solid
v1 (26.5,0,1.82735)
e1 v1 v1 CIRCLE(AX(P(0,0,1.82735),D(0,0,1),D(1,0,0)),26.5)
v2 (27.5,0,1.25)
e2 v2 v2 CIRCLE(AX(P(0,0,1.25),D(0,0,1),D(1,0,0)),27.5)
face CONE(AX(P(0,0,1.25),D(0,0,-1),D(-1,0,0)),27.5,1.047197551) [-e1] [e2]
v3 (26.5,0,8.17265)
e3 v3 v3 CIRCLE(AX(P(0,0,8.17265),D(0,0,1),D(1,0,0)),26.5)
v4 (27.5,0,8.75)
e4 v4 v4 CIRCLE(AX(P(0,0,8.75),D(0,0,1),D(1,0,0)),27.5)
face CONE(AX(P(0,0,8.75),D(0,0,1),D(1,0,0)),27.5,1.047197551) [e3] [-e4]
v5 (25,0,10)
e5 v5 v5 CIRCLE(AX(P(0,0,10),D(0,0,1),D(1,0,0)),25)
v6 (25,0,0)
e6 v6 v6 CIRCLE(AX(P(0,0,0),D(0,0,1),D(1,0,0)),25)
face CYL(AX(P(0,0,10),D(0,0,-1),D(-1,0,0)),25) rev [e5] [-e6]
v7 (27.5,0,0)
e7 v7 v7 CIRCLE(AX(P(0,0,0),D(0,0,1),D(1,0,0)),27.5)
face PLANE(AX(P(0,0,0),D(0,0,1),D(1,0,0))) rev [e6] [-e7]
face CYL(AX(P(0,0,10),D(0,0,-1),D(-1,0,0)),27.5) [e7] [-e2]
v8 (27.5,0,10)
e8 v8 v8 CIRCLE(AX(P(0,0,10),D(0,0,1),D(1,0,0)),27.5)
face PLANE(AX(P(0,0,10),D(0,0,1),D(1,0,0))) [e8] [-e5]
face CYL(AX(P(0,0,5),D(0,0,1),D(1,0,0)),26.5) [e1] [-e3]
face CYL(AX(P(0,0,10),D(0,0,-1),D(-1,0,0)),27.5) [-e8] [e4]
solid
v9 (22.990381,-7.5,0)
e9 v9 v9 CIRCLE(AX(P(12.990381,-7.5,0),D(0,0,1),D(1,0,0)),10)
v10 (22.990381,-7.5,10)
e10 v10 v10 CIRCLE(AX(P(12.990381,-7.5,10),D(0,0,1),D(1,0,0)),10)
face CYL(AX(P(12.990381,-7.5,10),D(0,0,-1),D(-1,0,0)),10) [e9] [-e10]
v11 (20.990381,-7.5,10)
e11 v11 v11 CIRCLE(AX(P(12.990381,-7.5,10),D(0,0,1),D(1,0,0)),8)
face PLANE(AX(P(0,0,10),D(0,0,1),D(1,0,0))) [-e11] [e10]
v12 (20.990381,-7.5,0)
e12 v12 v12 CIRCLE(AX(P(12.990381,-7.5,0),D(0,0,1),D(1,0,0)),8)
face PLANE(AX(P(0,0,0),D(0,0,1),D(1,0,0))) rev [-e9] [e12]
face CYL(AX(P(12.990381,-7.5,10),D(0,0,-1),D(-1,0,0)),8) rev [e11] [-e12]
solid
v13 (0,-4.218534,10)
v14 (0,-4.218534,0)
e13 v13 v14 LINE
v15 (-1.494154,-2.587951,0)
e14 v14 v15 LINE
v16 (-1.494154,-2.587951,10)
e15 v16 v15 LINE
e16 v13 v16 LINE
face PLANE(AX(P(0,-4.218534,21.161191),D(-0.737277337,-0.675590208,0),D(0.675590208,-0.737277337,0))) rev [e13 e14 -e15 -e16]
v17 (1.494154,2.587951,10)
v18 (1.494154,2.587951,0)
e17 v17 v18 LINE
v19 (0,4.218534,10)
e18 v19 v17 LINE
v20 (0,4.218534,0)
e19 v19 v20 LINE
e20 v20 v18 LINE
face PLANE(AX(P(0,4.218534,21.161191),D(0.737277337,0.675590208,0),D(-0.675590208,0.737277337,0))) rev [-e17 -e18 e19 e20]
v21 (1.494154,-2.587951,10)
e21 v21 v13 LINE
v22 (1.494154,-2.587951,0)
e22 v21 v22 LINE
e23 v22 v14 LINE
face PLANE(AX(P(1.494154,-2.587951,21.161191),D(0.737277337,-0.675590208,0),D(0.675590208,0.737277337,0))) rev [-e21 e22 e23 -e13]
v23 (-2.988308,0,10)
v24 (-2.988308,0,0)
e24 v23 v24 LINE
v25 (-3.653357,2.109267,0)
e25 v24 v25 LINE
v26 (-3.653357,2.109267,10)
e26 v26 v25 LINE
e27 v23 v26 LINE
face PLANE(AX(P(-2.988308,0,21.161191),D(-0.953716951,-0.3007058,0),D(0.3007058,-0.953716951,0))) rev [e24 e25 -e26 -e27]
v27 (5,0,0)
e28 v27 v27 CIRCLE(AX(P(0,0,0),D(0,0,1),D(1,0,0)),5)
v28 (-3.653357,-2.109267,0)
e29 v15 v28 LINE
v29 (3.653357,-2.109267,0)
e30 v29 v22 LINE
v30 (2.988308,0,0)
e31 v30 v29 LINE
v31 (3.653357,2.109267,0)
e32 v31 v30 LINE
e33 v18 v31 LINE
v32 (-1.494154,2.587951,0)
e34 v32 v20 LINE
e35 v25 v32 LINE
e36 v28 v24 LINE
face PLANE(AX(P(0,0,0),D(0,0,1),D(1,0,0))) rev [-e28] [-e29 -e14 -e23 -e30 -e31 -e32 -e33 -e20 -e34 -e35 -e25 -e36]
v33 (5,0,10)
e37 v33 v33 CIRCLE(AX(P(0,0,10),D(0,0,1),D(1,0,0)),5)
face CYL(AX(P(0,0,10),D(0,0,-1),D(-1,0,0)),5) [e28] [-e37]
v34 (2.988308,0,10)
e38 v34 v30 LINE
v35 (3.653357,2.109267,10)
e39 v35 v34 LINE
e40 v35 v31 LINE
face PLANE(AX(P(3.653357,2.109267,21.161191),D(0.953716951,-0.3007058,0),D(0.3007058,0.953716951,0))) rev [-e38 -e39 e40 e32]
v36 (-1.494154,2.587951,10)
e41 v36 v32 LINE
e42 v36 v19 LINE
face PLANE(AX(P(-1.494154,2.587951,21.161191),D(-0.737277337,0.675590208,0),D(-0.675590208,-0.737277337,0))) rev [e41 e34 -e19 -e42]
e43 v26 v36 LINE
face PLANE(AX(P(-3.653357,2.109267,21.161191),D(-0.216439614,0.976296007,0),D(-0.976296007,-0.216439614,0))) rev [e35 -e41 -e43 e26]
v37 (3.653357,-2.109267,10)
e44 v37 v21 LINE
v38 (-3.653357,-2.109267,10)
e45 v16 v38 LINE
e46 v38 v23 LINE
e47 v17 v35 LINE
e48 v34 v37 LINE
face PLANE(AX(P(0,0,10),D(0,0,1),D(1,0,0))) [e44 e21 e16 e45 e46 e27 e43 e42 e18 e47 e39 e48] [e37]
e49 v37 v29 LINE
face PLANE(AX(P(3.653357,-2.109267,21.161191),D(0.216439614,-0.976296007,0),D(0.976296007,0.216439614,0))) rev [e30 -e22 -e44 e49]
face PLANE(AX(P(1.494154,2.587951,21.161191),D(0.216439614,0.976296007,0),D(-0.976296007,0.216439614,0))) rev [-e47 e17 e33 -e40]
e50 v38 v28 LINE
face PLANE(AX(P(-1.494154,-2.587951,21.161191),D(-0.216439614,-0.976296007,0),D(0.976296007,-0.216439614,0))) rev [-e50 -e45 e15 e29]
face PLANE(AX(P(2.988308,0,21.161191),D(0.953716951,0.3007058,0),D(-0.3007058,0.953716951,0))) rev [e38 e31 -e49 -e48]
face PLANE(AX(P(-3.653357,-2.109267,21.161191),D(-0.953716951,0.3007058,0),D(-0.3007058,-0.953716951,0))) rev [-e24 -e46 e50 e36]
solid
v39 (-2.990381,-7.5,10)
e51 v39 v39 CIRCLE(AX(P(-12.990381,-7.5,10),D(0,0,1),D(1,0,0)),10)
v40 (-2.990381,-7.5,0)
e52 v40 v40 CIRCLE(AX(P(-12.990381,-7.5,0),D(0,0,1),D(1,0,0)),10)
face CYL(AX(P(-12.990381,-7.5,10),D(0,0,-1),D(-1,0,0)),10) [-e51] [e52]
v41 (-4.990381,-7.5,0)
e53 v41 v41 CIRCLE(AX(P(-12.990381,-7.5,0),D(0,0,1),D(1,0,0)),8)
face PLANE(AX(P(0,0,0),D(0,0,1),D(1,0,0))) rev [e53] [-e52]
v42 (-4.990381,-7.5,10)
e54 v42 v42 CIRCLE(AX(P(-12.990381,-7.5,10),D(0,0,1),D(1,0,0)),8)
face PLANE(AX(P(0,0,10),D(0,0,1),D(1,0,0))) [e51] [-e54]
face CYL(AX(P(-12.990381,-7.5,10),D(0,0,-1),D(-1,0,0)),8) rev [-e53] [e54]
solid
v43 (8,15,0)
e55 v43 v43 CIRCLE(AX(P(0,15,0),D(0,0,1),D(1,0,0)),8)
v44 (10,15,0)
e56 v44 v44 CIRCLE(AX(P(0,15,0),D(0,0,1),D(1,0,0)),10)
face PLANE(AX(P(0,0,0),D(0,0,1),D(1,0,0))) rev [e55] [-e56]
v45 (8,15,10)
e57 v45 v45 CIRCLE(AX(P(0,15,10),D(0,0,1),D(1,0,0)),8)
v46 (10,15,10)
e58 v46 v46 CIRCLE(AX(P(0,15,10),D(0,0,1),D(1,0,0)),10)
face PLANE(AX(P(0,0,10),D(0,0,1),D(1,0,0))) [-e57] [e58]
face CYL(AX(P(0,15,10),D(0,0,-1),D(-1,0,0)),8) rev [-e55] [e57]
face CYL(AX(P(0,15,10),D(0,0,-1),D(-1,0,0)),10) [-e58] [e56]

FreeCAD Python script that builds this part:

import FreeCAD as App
import Part
import Sketcher
Q = App.Units.Quantity

doc = App.newDocument("Part")
body = doc.addObject("PartDesign::Body", "Body")

sketch1 = body.newObject("Sketcher::SketchObject", "Sketch")
sketch1.AttachmentSupport = (doc.getObject("XY_Plane"), [""])
sketch1.MapMode = "FlatFace"
sketch1.addGeometry([
    Part.Circle(App.Vector(0, 15, 0), App.Vector(0, 0, 1), 10),
    Part.Circle(App.Vector(0, 15, 0), App.Vector(0, 0, 1), 8),
], False)
sketch1.addConstraint([
    Sketcher.Constraint("Coincident", 1, 3, 0, 3),
    Sketcher.Constraint("PointOnObject", 0, 3, -2),
    Sketcher.Constraint("Diameter", 0, Q("20 mm")),
    Sketcher.Constraint("Diameter", 1, Q("16 mm")),
    Sketcher.Constraint("DistanceY", -1, 1, 0, 3, Q("15 mm")),
])
pad1 = body.newObject("PartDesign::Pad", "Pad")
pad1.Profile = sketch1
pad1.Length = 10
body2 = doc.addObject("PartDesign::Body", "Body001")

sketch2 = body2.newObject("Sketcher::SketchObject", "Sketch001")
sketch2.AttachmentSupport = (doc.getObject("XY_Plane001"), [""])
sketch2.MapMode = "FlatFace"
sketch2.addGeometry([
    Part.Circle(App.Vector(-12.990381, -7.5, 0), App.Vector(0, 0, 1), 10),
    Part.Circle(App.Vector(-12.990381, -7.5, 0), App.Vector(0, 0, 1), 8),
], False)
sketch2.addConstraint([
    Sketcher.Constraint("Coincident", 1, 3, 0, 3),
    Sketcher.Constraint("Diameter", 0, Q("20 mm")),
    Sketcher.Constraint("Diameter", 1, Q("16 mm")),
    Sketcher.Constraint("DistanceY", 0, 3, -1, 1, Q("7.5 mm")),
    Sketcher.Constraint("DistanceX", 0, 3, -1, 1, Q("12.990381 mm")),
])
pad2 = body2.newObject("PartDesign::Pad", "Pad001")
pad2.Profile = sketch2
pad2.Length = 10
body3 = doc.addObject("PartDesign::Body", "Body002")

sketch3 = body3.newObject("Sketcher::SketchObject", "Sketch002")
sketch3.AttachmentSupport = (doc.getObject("XY_Plane002"), [""])
sketch3.MapMode = "FlatFace"
sketch3.addGeometry([
    Part.Circle(App.Vector(12.990381, -7.5, 0), App.Vector(0, 0, 1), 10),
    Part.Circle(App.Vector(12.990381, -7.5, 0), App.Vector(0, 0, 1), 8),
], False)
sketch3.addConstraint([
    Sketcher.Constraint("Coincident", 1, 3, 0, 3),
    Sketcher.Constraint("Diameter", 0, Q("20 mm")),
    Sketcher.Constraint("Diameter", 1, Q("16 mm")),
    Sketcher.Constraint("DistanceY", 0, 3, -1, 1, Q("7.5 mm")),
    Sketcher.Constraint("DistanceX", -1, 1, 0, 3, Q("12.990381 mm")),
])
pad3 = body3.newObject("PartDesign::Pad", "Pad002")
pad3.Profile = sketch3
pad3.Length = 10
body4 = doc.addObject("PartDesign::Body", "Body003")

sketch4 = body4.newObject("Sketcher::SketchObject", "Sketch003")
sketch4.AttachmentSupport = (doc.getObject("XY_Plane003"), [""])
sketch4.MapMode = "FlatFace"
sketch4.addGeometry([
    Part.Circle(App.Vector(0, 0, 0), App.Vector(0, 0, 1), 27.5),
    Part.Circle(App.Vector(0, 0, 0), App.Vector(0, 0, 1), 25),
], False)
sketch4.addConstraint([
    Sketcher.Constraint("Coincident", 0, 3, -1, 1),
    Sketcher.Constraint("Coincident", 1, 3, -1, 1),
    Sketcher.Constraint("Diameter", 0, Q("55 mm")),
    Sketcher.Constraint("Diameter", 1, Q("50 mm")),
])
pad4 = body4.newObject("PartDesign::Pad", "Pad003")
pad4.Profile = sketch4
pad4.Length = 10

sketch5 = body4.newObject("Sketcher::SketchObject", "Sketch004")
sketch5.AttachmentSupport = (doc.getObject("YZ_Plane003"), [""])
sketch5.MapMode = "FlatFace"
sketch5.addGeometry([
    Part.LineSegment(App.Vector(27.5, 8.75, 0), App.Vector(26.5, 8.17265, 0)),
    Part.LineSegment(App.Vector(26.5, 8.17265, 0), App.Vector(26.5, 1.82735, 0)),
    Part.LineSegment(App.Vector(26.5, 1.82735, 0), App.Vector(27.5, 1.25, 0)),
    Part.LineSegment(App.Vector(27.5, 1.25, 0), App.Vector(27.5, 8.75, 0)),
], False)
sketch5.addConstraint([
    Sketcher.Constraint("Coincident", 0, 2, 1, 1),
    Sketcher.Constraint("Coincident", 1, 2, 2, 1),
    Sketcher.Constraint("Coincident", 2, 2, 3, 1),
    Sketcher.Constraint("Coincident", 3, 2, 0, 1),
    Sketcher.Constraint("Vertical", 1),
    Sketcher.Constraint("Vertical", 3),
    Sketcher.Constraint("Equal", 0, 2),
    Sketcher.Constraint("Angle", 0, Q("-150 deg")),
    Sketcher.Constraint("DistanceY", 3, 1, 3, 2, Q("7.5 mm")),
    Sketcher.Constraint("DistanceX", 1, 2, 2, 2, Q("1 mm")),
    Sketcher.Constraint("DistanceX", -1, 1, 0, 2, Q("26.5 mm")),
    Sketcher.Constraint("DistanceY", -1, 1, 2, 2, Q("1.25 mm")),
])
groove = body4.newObject("PartDesign::Groove", "Groove")
groove.Profile = sketch5
groove.ReferenceAxis = (sketch5, ["V_Axis"])
groove.Angle = 360
body5 = doc.addObject("PartDesign::Body", "Body004")

sketch6 = body5.newObject("Sketcher::SketchObject", "Sketch005")
sketch6.AttachmentSupport = (doc.getObject("XY_Plane004"), [""])
sketch6.MapMode = "FlatFace"
sketch6.addGeometry(Part.Circle(App.Vector(0, 0, 0), App.Vector(0, 0, 1), 5), False)
sketch6.addConstraint([
    Sketcher.Constraint("Coincident", 0, 3, -1, 1),
    Sketcher.Constraint("Diameter", 0, Q("10 mm")),
])
pad5 = body5.newObject("PartDesign::Pad", "Pad004")
pad5.Profile = sketch6
pad5.Length = 10

sketch7 = body5.newObject("Sketcher::SketchObject", "Sketch006")
sketch7.AttachmentSupport = (doc.getObject("XY_Plane004"), [""])
sketch7.MapMode = "FlatFace"
sketch7.addGeometry([
    Part.LineSegment(App.Vector(0, -3.922496, 0), App.Vector(-1.389301, -2.40634, 0)),
    Part.LineSegment(App.Vector(-1.389301, -2.40634, 0), App.Vector(-3.396981, -1.961248, 0)),
    Part.LineSegment(App.Vector(-3.396981, -1.961248, 0), App.Vector(-2.778602, 0, 0)),
    Part.LineSegment(App.Vector(-2.778602, 0, 0), App.Vector(-3.396981, 1.961248, 0)),
    Part.LineSegment(App.Vector(-3.396981, 1.961248, 0), App.Vector(-1.389301, 2.40634, 0)),
    Part.LineSegment(App.Vector(-1.389301, 2.40634, 0), App.Vector(0, 3.922496, 0)),
    Part.LineSegment(App.Vector(0, 3.922496, 0), App.Vector(1.389301, 2.40634, 0)),
    Part.LineSegment(App.Vector(1.389301, 2.40634, 0), App.Vector(3.396981, 1.961248, 0)),
    Part.LineSegment(App.Vector(3.396981, 1.961248, 0), App.Vector(2.778602, 0, 0)),
    Part.LineSegment(App.Vector(2.778602, 0, 0), App.Vector(3.396981, -1.961248, 0)),
    Part.LineSegment(App.Vector(3.396981, -1.961248, 0), App.Vector(1.389301, -2.40634, 0)),
    Part.LineSegment(App.Vector(1.389301, -2.40634, 0), App.Vector(0, -3.922496, 0)),
], False)
sketch7.addConstraint([
    Sketcher.Constraint("Coincident", 0, 2, 1, 1),
    Sketcher.Constraint("Coincident", 1, 2, 2, 1),
    Sketcher.Constraint("Coincident", 2, 2, 3, 1),
    Sketcher.Constraint("Coincident", 3, 2, 4, 1),
    Sketcher.Constraint("Coincident", 4, 2, 5, 1),
    Sketcher.Constraint("Coincident", 5, 2, 6, 1),
    Sketcher.Constraint("Coincident", 6, 2, 7, 1),
    Sketcher.Constraint("Coincident", 7, 2, 8, 1),
    Sketcher.Constraint("Coincident", 8, 2, 9, 1),
    Sketcher.Constraint("Coincident", 9, 2, 10, 1),
    Sketcher.Constraint("Coincident", 10, 2, 11, 1),
    Sketcher.Constraint("Coincident", 11, 2, 0, 1),
    Sketcher.Constraint("Symmetric", 0, 2, 6, 2, -1, 1),
    Sketcher.Constraint("Symmetric", 1, 2, 7, 2, -1, 1),
    Sketcher.Constraint("Symmetric", 2, 2, 8, 2, -1, 1),
    Sketcher.Constraint("Symmetric", 3, 2, 9, 2, -1, 1),
    Sketcher.Constraint("Symmetric", 4, 2, 10, 2, -1, 1),
    Sketcher.Constraint("Symmetric", 5, 2, 11, 2, -1, 1),
    Sketcher.Constraint("Symmetric", 4, 2, 6, 2, -2),
    Sketcher.Constraint("Symmetric", 3, 2, 7, 2, -2),
    Sketcher.Constraint("PointOnObject", 2, 2, -1),
    Sketcher.Constraint("PointOnObject", 5, 2, -2),
    Sketcher.Constraint("Equal", 0, 1),
    Sketcher.Constraint("Equal", 1, 2),
    Sketcher.Constraint("Angle", 0, Q("132.5 deg")),
    Sketcher.Constraint("Angle", 1, Q("167.5 deg")),
    Sketcher.Constraint("Angle", 2, Q("72.5 deg")),
    Sketcher.Constraint("DistanceX", 0, 2, -1, 1, Q("1.389301 mm")),
])
pocket1 = body5.newObject("PartDesign::Pocket", "Pocket")
pocket1.Profile = sketch7
pocket1.Length = 10
pocket1.Reversed = True

sketch8 = body5.newObject("Sketcher::SketchObject", "Sketch007")
sketch8.AttachmentSupport = (doc.getObject("XY_Plane004"), [""])
sketch8.MapMode = "FlatFace"
sketch8.addGeometry([
    Part.LineSegment(App.Vector(3.653357, 2.109267, 0), App.Vector(2.988308, 0, 0)),
    Part.LineSegment(App.Vector(2.988308, 0, 0), App.Vector(3.653357, -2.109267, 0)),
    Part.LineSegment(App.Vector(3.653357, -2.109267, 0), App.Vector(1.494154, -2.587951, 0)),
    Part.LineSegment(App.Vector(1.494154, -2.587951, 0), App.Vector(0, -4.218534, 0)),
    Part.LineSegment(App.Vector(0, -4.218534, 0), App.Vector(-1.494154, -2.587951, 0)),
    Part.LineSegment(App.Vector(-1.494154, -2.587951, 0), App.Vector(-3.653357, -2.109267, 0)),
    Part.LineSegment(App.Vector(-3.653357, -2.109267, 0), App.Vector(-2.988308, 0, 0)),
    Part.LineSegment(App.Vector(-2.988308, 0, 0), App.Vector(-3.653357, 2.109267, 0)),
    Part.LineSegment(App.Vector(-3.653357, 2.109267, 0), App.Vector(-1.494154, 2.587951, 0)),
    Part.LineSegment(App.Vector(-1.494154, 2.587951, 0), App.Vector(0, 4.218534, 0)),
    Part.LineSegment(App.Vector(0, 4.218534, 0), App.Vector(1.494154, 2.587951, 0)),
    Part.LineSegment(App.Vector(1.494154, 2.587951, 0), App.Vector(3.653357, 2.109267, 0)),
], False)
sketch8.addConstraint([
    Sketcher.Constraint("Coincident", 0, 2, 1, 1),
    Sketcher.Constraint("Coincident", 1, 2, 2, 1),
    Sketcher.Constraint("Coincident", 2, 2, 3, 1),
    Sketcher.Constraint("Coincident", 3, 2, 4, 1),
    Sketcher.Constraint("Coincident", 4, 2, 5, 1),
    Sketcher.Constraint("Coincident", 5, 2, 6, 1),
    Sketcher.Constraint("Coincident", 6, 2, 7, 1),
    Sketcher.Constraint("Coincident", 7, 2, 8, 1),
    Sketcher.Constraint("Coincident", 8, 2, 9, 1),
    Sketcher.Constraint("Coincident", 9, 2, 10, 1),
    Sketcher.Constraint("Coincident", 10, 2, 11, 1),
    Sketcher.Constraint("Coincident", 11, 2, 0, 1),
    Sketcher.Constraint("Symmetric", 0, 2, 6, 2, -1, 1),
    Sketcher.Constraint("Symmetric", 1, 2, 7, 2, -1, 1),
    Sketcher.Constraint("Symmetric", 2, 2, 8, 2, -1, 1),
    Sketcher.Constraint("Symmetric", 3, 2, 9, 2, -1, 1),
    Sketcher.Constraint("Symmetric", 4, 2, 10, 2, -1, 1),
    Sketcher.Constraint("Symmetric", 5, 2, 11, 2, -1, 1),
    Sketcher.Constraint("Symmetric", 2, 2, 4, 2, -2),
    Sketcher.Constraint("Symmetric", 1, 2, 5, 2, -2),
    Sketcher.Constraint("PointOnObject", 0, 2, -1),
    Sketcher.Constraint("PointOnObject", 3, 2, -2),
    Sketcher.Constraint("Equal", 1, 2),
    Sketcher.Constraint("Equal", 2, 3),
    Sketcher.Constraint("Angle", 0, Q("-107.5 deg")),
    Sketcher.Constraint("Angle", 2, Q("-167.5 deg")),
    Sketcher.Constraint("Angle", 3, Q("-132.5 deg")),
    Sketcher.Constraint("DistanceY", 4, 2, 8, 2, Q("5.175901 mm")),
])
pocket2 = body5.newObject("PartDesign::Pocket", "Pocket001")
pocket2.Profile = sketch8
pocket2.Length = 10
pocket2.Reversed = True

doc.recompute()
